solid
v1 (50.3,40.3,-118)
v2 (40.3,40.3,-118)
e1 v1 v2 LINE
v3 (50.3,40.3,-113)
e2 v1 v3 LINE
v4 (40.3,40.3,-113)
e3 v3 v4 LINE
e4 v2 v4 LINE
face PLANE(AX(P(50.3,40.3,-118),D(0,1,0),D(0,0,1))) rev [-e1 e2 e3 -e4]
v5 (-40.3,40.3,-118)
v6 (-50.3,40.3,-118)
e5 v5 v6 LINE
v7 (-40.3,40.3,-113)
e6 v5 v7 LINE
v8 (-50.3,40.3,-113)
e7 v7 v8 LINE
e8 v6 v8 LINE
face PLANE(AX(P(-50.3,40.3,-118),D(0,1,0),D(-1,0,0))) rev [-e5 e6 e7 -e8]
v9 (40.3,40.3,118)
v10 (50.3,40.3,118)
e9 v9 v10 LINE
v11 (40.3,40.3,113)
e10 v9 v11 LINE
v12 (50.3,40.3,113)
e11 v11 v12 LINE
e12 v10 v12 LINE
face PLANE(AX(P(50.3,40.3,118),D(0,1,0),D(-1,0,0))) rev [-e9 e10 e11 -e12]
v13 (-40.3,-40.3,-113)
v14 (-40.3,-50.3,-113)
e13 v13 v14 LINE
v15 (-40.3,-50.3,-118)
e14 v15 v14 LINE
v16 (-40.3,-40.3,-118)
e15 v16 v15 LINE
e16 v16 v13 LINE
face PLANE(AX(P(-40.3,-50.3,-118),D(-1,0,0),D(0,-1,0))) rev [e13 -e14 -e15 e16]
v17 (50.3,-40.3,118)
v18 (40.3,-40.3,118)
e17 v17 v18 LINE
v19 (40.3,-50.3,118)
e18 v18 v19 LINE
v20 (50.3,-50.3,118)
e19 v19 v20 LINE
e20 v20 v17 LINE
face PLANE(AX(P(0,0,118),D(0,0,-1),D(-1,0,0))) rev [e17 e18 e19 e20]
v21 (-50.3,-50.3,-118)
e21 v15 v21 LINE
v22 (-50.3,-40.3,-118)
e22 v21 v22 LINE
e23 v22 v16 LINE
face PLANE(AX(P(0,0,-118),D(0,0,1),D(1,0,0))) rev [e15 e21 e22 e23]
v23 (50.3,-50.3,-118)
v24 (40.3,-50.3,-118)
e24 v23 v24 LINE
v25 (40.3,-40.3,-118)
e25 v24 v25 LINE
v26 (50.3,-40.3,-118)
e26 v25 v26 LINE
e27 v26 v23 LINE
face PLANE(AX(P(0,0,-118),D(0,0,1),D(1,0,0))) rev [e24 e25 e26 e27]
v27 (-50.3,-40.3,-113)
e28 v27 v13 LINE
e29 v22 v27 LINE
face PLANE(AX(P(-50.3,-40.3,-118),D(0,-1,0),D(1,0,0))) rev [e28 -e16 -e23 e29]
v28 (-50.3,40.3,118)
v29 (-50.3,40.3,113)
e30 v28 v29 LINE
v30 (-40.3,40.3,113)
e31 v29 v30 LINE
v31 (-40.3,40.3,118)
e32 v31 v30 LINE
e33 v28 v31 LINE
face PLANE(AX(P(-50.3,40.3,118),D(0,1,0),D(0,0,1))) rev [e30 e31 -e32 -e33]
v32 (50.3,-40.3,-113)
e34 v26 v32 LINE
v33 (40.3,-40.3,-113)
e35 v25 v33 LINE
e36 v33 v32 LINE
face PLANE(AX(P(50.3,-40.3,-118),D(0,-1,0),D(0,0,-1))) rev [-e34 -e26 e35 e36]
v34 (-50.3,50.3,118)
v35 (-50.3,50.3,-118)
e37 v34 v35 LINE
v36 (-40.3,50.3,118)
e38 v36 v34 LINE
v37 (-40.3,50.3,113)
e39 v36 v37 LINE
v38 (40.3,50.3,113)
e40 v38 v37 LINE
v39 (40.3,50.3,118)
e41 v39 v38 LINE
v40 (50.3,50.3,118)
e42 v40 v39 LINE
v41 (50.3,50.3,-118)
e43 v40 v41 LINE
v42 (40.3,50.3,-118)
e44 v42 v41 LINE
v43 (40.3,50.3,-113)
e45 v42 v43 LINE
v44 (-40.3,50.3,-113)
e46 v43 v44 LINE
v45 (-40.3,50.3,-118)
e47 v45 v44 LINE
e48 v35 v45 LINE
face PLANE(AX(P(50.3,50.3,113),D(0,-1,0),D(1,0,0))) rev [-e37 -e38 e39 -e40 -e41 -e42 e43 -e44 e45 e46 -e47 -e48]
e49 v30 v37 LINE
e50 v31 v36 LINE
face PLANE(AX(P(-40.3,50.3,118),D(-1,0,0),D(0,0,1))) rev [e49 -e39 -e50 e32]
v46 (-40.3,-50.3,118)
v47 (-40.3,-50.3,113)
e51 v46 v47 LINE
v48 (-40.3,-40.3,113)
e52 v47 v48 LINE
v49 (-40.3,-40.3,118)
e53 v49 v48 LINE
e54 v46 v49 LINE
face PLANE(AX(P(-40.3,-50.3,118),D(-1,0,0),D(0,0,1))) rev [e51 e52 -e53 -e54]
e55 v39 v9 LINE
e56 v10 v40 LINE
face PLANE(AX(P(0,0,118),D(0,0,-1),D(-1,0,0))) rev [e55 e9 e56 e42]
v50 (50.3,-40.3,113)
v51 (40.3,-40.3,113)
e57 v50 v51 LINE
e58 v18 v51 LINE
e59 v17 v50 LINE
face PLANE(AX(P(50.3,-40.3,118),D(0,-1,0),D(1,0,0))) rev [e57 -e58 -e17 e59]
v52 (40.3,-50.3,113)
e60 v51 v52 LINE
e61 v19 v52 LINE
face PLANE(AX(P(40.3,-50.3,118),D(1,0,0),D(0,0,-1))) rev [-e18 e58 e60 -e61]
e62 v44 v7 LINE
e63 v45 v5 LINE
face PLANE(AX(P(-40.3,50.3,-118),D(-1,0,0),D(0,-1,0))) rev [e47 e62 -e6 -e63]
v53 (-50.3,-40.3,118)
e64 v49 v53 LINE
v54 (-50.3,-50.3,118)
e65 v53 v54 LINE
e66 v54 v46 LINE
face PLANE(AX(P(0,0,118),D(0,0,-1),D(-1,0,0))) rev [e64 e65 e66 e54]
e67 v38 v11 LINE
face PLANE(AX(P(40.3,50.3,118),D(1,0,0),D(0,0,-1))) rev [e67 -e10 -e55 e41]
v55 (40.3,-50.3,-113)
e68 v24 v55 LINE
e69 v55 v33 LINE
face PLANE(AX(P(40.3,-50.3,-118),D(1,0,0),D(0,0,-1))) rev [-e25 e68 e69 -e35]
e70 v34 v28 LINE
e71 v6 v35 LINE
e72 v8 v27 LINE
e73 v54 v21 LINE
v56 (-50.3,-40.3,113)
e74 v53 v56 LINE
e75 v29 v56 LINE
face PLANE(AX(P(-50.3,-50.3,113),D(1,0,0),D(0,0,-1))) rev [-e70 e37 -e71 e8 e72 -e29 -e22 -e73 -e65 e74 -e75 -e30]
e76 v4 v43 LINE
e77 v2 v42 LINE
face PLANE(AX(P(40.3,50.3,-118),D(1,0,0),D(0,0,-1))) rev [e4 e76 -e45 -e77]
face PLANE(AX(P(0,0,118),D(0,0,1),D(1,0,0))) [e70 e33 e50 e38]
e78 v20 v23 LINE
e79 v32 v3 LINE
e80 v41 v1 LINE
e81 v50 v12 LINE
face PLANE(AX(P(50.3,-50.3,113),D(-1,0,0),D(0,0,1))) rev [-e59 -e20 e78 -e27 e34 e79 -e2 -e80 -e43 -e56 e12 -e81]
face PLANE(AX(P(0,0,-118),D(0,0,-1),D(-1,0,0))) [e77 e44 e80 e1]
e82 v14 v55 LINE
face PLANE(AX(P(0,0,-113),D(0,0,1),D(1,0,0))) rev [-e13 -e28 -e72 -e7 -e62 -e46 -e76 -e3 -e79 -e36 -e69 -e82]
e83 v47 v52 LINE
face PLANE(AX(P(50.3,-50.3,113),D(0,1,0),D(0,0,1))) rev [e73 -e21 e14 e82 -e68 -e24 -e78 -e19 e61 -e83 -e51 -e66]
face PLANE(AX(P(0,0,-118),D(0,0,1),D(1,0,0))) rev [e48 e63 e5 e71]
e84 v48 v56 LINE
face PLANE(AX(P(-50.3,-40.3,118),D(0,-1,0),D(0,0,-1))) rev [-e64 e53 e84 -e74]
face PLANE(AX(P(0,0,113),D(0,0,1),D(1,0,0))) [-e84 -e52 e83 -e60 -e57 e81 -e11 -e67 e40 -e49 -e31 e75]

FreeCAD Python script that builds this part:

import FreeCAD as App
import Part
import Sketcher
Q = App.Units.Quantity

doc = App.newDocument("Part")
body = doc.addObject("PartDesign::Body", "Body")

# Sketch on XY plane
sketch1 = body.newObject("Sketcher::SketchObject", "Sketch")
sketch1.AttachmentSupport = (doc.getObject("XY_Plane"), [""])
sketch1.MapMode = "FlatFace"
sketch1.addGeometry([
    Part.LineSegment(App.Vector(-50, 50, 0), App.Vector(-50, -50, 0)),
    Part.LineSegment(App.Vector(-50, -50, 0), App.Vector(50, -50, 0)),
    Part.LineSegment(App.Vector(50, -50, 0), App.Vector(50, 50, 0)),
    Part.LineSegment(App.Vector(50, 50, 0), App.Vector(-50, 50, 0)),
], False)
sketch1.addConstraint([
    Sketcher.Constraint("Coincident", 0, 2, 1, 1),
    Sketcher.Constraint("Coincident", 1, 2, 2, 1),
    Sketcher.Constraint("Coincident", 2, 2, 3, 1),
    Sketcher.Constraint("Coincident", 3, 2, 0, 1),
    Sketcher.Constraint("Vertical", 0),
    Sketcher.Constraint("Horizontal", 1),
    Sketcher.Constraint("Vertical", 2),
    Sketcher.Constraint("Horizontal", 3),
    Sketcher.Constraint("Symmetric", 0, 2, 2, 2, -1, 1),
    Sketcher.Constraint("Equal", 3, 0),
    Sketcher.Constraint("DistanceX", 1, 1, 1, 2, Q("100.6 mm")),
])
pad1 = body.newObject("PartDesign::Pad", "Pad")
pad1.Profile = sketch1
pad1.Length = 226
pad1.Midplane = True

# Sketch on XY plane
sketch2 = body.newObject("Sketcher::SketchObject", "Sketch001")
sketch2.AttachmentSupport = (doc.getObject("XY_Plane"), [""])
sketch2.MapMode = "FlatFace"
sketch2.AttachmentOffset = App.Placement(App.Vector(0, 0, 113), App.Rotation())
sketch2.addGeometry([
    Part.LineSegment(App.Vector(-50, 50, 0), App.Vector(-50, 40, 0)),  # 0
    Part.LineSegment(App.Vector(-50, 40, 0), App.Vector(-40, 40, 0)),  # 1
    Part.LineSegment(App.Vector(-40, 40, 0), App.Vector(-40, 50, 0)),  # 2
    Part.LineSegment(App.Vector(-40, 50, 0), App.Vector(-50, 50, 0)),  # 3
    Part.LineSegment(App.Vector(40, 50, 0), App.Vector(40, 40, 0)),  # 4
    Part.LineSegment(App.Vector(40, 40, 0), App.Vector(50, 40, 0)),  # 5
    Part.LineSegment(App.Vector(50, 40, 0), App.Vector(50, 50, 0)),  # 6
    Part.LineSegment(App.Vector(50, 50, 0), App.Vector(40, 50, 0)),  # 7
    Part.LineSegment(App.Vector(40, -40, 0), App.Vector(40, -50, 0)),  # 8
    Part.LineSegment(App.Vector(40, -50, 0), App.Vector(50, -50, 0)),  # 9
    Part.LineSegment(App.Vector(50, -50, 0), App.Vector(50, -40, 0)),  # 10
    Part.LineSegment(App.Vector(50, -40, 0), App.Vector(40, -40, 0)),  # 11
    Part.LineSegment(App.Vector(-50, -40, 0), App.Vector(-50, -50, 0)),  # 12
    Part.LineSegment(App.Vector(-50, -50, 0), App.Vector(-40, -50, 0)),  # 13
    Part.LineSegment(App.Vector(-40, -50, 0), App.Vector(-40, -40, 0)),  # 14
    Part.LineSegment(App.Vector(-40, -40, 0), App.Vector(-50, -40, 0)),  # 15
], False)
sketch2.addConstraint([
    Sketcher.Constraint("Coincident", 0, 2, 1, 1),
    Sketcher.Constraint("Coincident", 1, 2, 2, 1),
    Sketcher.Constraint("Coincident", 2, 2, 3, 1),
    Sketcher.Constraint("Coincident", 3, 2, 0, 1),
    Sketcher.Constraint("Coincident", 4, 2, 5, 1),
    Sketcher.Constraint("Coincident", 5, 2, 6, 1),
    Sketcher.Constraint("Coincident", 6, 2, 7, 1),
    Sketcher.Constraint("Coincident", 7, 2, 4, 1),
    Sketcher.Constraint("Coincident", 8, 2, 9, 1),
    Sketcher.Constraint("Coincident", 9, 2, 10, 1),
    Sketcher.Constraint("Coincident", 10, 2, 11, 1),
    Sketcher.Constraint("Coincident", 11, 2, 8, 1),
    Sketcher.Constraint("Coincident", 12, 2, 13, 1),
    Sketcher.Constraint("Coincident", 13, 2, 14, 1),
    Sketcher.Constraint("Coincident", 14, 2, 15, 1),
    Sketcher.Constraint("Coincident", 15, 2, 12, 1),
    Sketcher.Constraint("Vertical", 0),
    Sketcher.Constraint("Horizontal", 1),
    Sketcher.Constraint("Vertical", 2),
    Sketcher.Constraint("Horizontal", 3),
    Sketcher.Constraint("Vertical", 4),
    Sketcher.Constraint("Horizontal", 5),
    Sketcher.Constraint("Vertical", 6),
    Sketcher.Constraint("Horizontal", 7),
    Sketcher.Constraint("Vertical", 8),
    Sketcher.Constraint("Horizontal", 9),
    Sketcher.Constraint("Vertical", 10),
    Sketcher.Constraint("Horizontal", 11),
    Sketcher.Constraint("Vertical", 12),
    Sketcher.Constraint("Horizontal", 13),
    Sketcher.Constraint("Vertical", 14),
    Sketcher.Constraint("Horizontal", 15),
    Sketcher.Constraint("Symmetric", 2, 2, 8, 2, -1, 1),
    Sketcher.Constraint("Symmetric", 0, 2, 10, 2, -1, 1),
    Sketcher.Constraint("Symmetric", 6, 2, 12, 2, -1, 1),
    Sketcher.Constraint("Symmetric", 4, 2, 14, 2, -1, 1),
    Sketcher.Constraint("Symmetric", 1, 2, 4, 2, -2),
    Sketcher.Constraint("Symmetric", 3, 2, 6, 2, -2),
    Sketcher.Constraint("Equal", 15, 0),
    Sketcher.Constraint("DistanceX", 1, 1, 1, 2, Q("10 mm")),
    Sketcher.Constraint("DistanceX", 0, 2, -1, 1, Q("50.3 mm")),
    Sketcher.Constraint("DistanceY", -1, 1, 0, 2, Q("40.3 mm")),
])
pad2 = body.newObject("PartDesign::Pad", "Pad001")
pad2.Profile = sketch2
pad2.Length = 5

# Sketch on XY plane
sketch3 = body.newObject("Sketcher::SketchObject", "Sketch002")
sketch3.AttachmentSupport = (doc.getObject("XY_Plane"), [""])
sketch3.MapMode = "FlatFace"
sketch3.AttachmentOffset = App.Placement(App.Vector(0, 0, -113), App.Rotation())
sketch3.addGeometry([
    Part.LineSegment(App.Vector(50, 50, 0), App.Vector(50, 40, 0)),  # 0
    Part.LineSegment(App.Vector(50, 40, 0), App.Vector(40, 40, 0)),  # 1
    Part.LineSegment(App.Vector(40, 40, 0), App.Vector(40, 50, 0)),  # 2
    Part.LineSegment(App.Vector(40, 50, 0), App.Vector(50, 50, 0)),  # 3
    Part.LineSegment(App.Vector(-40, 50, 0), App.Vector(-40, 40, 0)),  # 4
    Part.LineSegment(App.Vector(-40, 40, 0), App.Vector(-50, 40, 0)),  # 5
    Part.LineSegment(App.Vector(-50, 40, 0), App.Vector(-50, 50, 0)),  # 6
    Part.LineSegment(App.Vector(-50, 50, 0), App.Vector(-40, 50, 0)),  # 7
    Part.LineSegment(App.Vector(-40, -40, 0), App.Vector(-40, -50, 0)),  # 8
    Part.LineSegment(App.Vector(-40, -50, 0), App.Vector(-50, -50, 0)),  # 9
    Part.LineSegment(App.Vector(-50, -50, 0), App.Vector(-50, -40, 0)),  # 10
    Part.LineSegment(App.Vector(-50, -40, 0), App.Vector(-40, -40, 0)),  # 11
    Part.LineSegment(App.Vector(50, -40, 0), App.Vector(50, -50, 0)),  # 12
    Part.LineSegment(App.Vector(50, -50, 0), App.Vector(40, -50, 0)),  # 13
    Part.LineSegment(App.Vector(40, -50, 0), App.Vector(40, -40, 0)),  # 14
    Part.LineSegment(App.Vector(40, -40, 0), App.Vector(50, -40, 0)),  # 15
], False)
sketch3.addConstraint([
    Sketcher.Constraint("Coincident", 0, 2, 1, 1),
    Sketcher.Constraint("Coincident", 1, 2, 2, 1),
    Sketcher.Constraint("Coincident", 2, 2, 3, 1),
    Sketcher.Constraint("Coincident", 3, 2, 0, 1),
    Sketcher.Constraint("Coincident", 4, 2, 5, 1),
    Sketcher.Constraint("Coincident", 5, 2, 6, 1),
    Sketcher.Constraint("Coincident", 6, 2, 7, 1),
    Sketcher.Constraint("Coincident", 7, 2, 4, 1),
    Sketcher.Constraint("Coincident", 8, 2, 9, 1),
    Sketcher.Constraint("Coincident", 9, 2, 10, 1),
    Sketcher.Constraint("Coincident", 10, 2, 11, 1),
    Sketcher.Constraint("Coincident", 11, 2, 8, 1),
    Sketcher.Constraint("Coincident", 12, 2, 13, 1),
    Sketcher.Constraint("Coincident", 13, 2, 14, 1),
    Sketcher.Constraint("Coincident", 14, 2, 15, 1),
    Sketcher.Constraint("Coincident", 15, 2, 12, 1),
    Sketcher.Constraint("Vertical", 0),
    Sketcher.Constraint("Horizontal", 1),
    Sketcher.Constraint("Vertical", 2),
    Sketcher.Constraint("Horizontal", 3),
    Sketcher.Constraint("Vertical", 4),
    Sketcher.Constraint("Horizontal", 5),
    Sketcher.Constraint("Vertical", 6),
    Sketcher.Constraint("Horizontal", 7),
    Sketcher.Constraint("Vertical", 8),
    Sketcher.Constraint("Horizontal", 9),
    Sketcher.Constraint("Vertical", 10),
    Sketcher.Constraint("Horizontal", 11),
    Sketcher.Constraint("Vertical", 12),
    Sketcher.Constraint("Horizontal", 13),
    Sketcher.Constraint("Vertical", 14),
    Sketcher.Constraint("Horizontal", 15),
    Sketcher.Constraint("Symmetric", 2, 2, 8, 2, -1, 1),
    Sketcher.Constraint("Symmetric", 0, 2, 10, 2, -1, 1),
    Sketcher.Constraint("Symmetric", 6, 2, 12, 2, -1, 1),
    Sketcher.Constraint("Symmetric", 4, 2, 14, 2, -1, 1),
    Sketcher.Constraint("Symmetric", 1, 2, 4, 2, -2),
    Sketcher.Constraint("Symmetric", 3, 2, 6, 2, -2),
    Sketcher.Constraint("Equal", 15, 0),
    Sketcher.Constraint("DistanceX", 1, 2, 1, 1, Q("10 mm")),
    Sketcher.Constraint("DistanceX", -1, 1, 0, 2, Q("50.3 mm")),
    Sketcher.Constraint("DistanceY", -1, 1, 0, 2, Q("40.3 mm")),
])
pad3 = body.newObject("PartDesign::Pad", "Pad002")
pad3.Profile = sketch3
pad3.Length = 5
pad3.Reversed = True

doc.recompute()
